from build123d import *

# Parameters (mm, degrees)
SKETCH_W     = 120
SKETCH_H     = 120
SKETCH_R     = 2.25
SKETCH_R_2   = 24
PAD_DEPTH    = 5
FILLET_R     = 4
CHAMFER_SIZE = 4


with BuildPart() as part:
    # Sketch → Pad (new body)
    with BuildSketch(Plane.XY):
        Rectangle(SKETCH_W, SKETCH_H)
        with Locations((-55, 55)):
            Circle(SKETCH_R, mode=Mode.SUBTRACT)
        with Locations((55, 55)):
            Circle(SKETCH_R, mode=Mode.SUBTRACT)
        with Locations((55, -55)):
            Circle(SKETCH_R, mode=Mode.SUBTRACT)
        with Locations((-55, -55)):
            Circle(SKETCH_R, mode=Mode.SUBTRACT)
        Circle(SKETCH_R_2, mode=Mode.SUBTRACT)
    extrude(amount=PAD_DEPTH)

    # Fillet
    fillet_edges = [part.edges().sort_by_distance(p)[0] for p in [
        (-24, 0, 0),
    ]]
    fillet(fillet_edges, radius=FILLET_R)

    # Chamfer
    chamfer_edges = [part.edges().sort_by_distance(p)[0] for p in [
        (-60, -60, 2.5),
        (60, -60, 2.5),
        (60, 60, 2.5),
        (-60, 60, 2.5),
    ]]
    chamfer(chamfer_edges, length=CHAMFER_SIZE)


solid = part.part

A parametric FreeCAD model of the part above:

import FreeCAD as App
import Part
import Sketcher

V = App.Vector
Q = App.Units.Quantity


def edges_at(feature, points):
    """Names of the edges that pass closest to the given points."""
    edges = feature.Shape.Edges
    near = lambda p: min(range(len(edges)), key=lambda i: edges[i].distToShape(Part.Vertex(*p))[0])
    return sorted({f"Edge{near(p) + 1}" for p in points})

doc = App.newDocument("Part")
body = doc.addObject("PartDesign::Body", "Body")

sketch1 = body.newObject("Sketcher::SketchObject", "Sketch")
sketch1.AttachmentSupport = (doc.getObject("XY_Plane"), [""])
sketch1.MapMode = "FlatFace"
sketch1.addGeometry(Part.LineSegment(V(-60, 60, 0), V(-60, -60, 0)), False)
sketch1.addGeometry(Part.LineSegment(V(-60, -60, 0), V(60, -60, 0)), False)
sketch1.addGeometry(Part.LineSegment(V(60, -60, 0), V(60, 60, 0)), False)
sketch1.addGeometry(Part.LineSegment(V(60, 60, 0), V(-60, 60, 0)), False)
sketch1.addGeometry(Part.Circle(V(-55, -55, 0), V(0, 0, 1), 2.25), False)
sketch1.addGeometry(Part.Circle(V(55, -55, 0), V(0, 0, 1), 2.25), False)
sketch1.addGeometry(Part.Circle(V(-55, 55, 0), V(0, 0, 1), 2.25), False)
sketch1.addGeometry(Part.Circle(V(0, 0, 0), V(0, 0, 1), 24), False)
sketch1.addGeometry(Part.Circle(V(55, 55, 0), V(0, 0, 1), 2.25), False)
sketch1.addConstraint(Sketcher.Constraint("Coincident", 0, 2, 1, 1))
sketch1.addConstraint(Sketcher.Constraint("Coincident", 1, 2, 2, 1))
sketch1.addConstraint(Sketcher.Constraint("Coincident", 2, 2, 3, 1))
sketch1.addConstraint(Sketcher.Constraint("Coincident", 3, 2, 0, 1))
sketch1.addConstraint(Sketcher.Constraint("Vertical", 0))
sketch1.addConstraint(Sketcher.Constraint("Horizontal", 1))
sketch1.addConstraint(Sketcher.Constraint("Vertical", 2))
sketch1.addConstraint(Sketcher.Constraint("Horizontal", 3))
sketch1.addConstraint(Sketcher.Constraint("Coincident", 7, 3, -1, 1))
sketch1.addConstraint(Sketcher.Constraint("Equal", 4, 5))
sketch1.addConstraint(Sketcher.Constraint("Equal", 5, 6))
sketch1.addConstraint(Sketcher.Constraint("Equal", 6, 8))
sketch1.addConstraint(Sketcher.Constraint("Symmetric", 5, 3, 6, 3, -1, 1))
sketch1.addConstraint(Sketcher.Constraint("Symmetric", 4, 3, 8, 3, -1, 1))
sketch1.addConstraint(Sketcher.Constraint("Symmetric", 0, 2, 2, 2, -1, 1))
sketch1.addConstraint(Sketcher.Constraint("Symmetric", 4, 3, 5, 3, -2))
sketch1.addConstraint(Sketcher.Constraint("Equal", 3, 0))
sketch1.addConstraint(Sketcher.Constraint("Diameter", 7, Q("48 mm")))
sketch1.addConstraint(Sketcher.Constraint("Diameter", 4, Q("4.5 mm")))
sketch1.addConstraint(Sketcher.Constraint("DistanceX", 1, 1, 1, 2, Q("120 mm")))
sketch1.addConstraint(Sketcher.Constraint("DistanceX", 4, 3, -1, 1, Q("55 mm")))
sketch1.addConstraint(Sketcher.Constraint("DistanceY", 4, 3, -1, 1, Q("55 mm")))
pad1 = body.newObject("PartDesign::Pad", "Pad")
pad1.Profile = sketch1
pad1.Length = 5
doc.recompute()

fillet = body.newObject("PartDesign::Fillet", "Fillet")
fillet.Base = (pad1, edges_at(pad1, [(-24, 0, 0)]))
fillet.Radius = 4
doc.recompute()

chamfer = body.newObject("PartDesign::Chamfer", "Chamfer")
chamfer.Base = (fillet, edges_at(fillet, [
    (-60, -60, 2.5),
    (60, -60, 2.5),
    (60, 60, 2.5),
    (-60, 60, 2.5),
]))
chamfer.Size = 4

doc.recompute()
